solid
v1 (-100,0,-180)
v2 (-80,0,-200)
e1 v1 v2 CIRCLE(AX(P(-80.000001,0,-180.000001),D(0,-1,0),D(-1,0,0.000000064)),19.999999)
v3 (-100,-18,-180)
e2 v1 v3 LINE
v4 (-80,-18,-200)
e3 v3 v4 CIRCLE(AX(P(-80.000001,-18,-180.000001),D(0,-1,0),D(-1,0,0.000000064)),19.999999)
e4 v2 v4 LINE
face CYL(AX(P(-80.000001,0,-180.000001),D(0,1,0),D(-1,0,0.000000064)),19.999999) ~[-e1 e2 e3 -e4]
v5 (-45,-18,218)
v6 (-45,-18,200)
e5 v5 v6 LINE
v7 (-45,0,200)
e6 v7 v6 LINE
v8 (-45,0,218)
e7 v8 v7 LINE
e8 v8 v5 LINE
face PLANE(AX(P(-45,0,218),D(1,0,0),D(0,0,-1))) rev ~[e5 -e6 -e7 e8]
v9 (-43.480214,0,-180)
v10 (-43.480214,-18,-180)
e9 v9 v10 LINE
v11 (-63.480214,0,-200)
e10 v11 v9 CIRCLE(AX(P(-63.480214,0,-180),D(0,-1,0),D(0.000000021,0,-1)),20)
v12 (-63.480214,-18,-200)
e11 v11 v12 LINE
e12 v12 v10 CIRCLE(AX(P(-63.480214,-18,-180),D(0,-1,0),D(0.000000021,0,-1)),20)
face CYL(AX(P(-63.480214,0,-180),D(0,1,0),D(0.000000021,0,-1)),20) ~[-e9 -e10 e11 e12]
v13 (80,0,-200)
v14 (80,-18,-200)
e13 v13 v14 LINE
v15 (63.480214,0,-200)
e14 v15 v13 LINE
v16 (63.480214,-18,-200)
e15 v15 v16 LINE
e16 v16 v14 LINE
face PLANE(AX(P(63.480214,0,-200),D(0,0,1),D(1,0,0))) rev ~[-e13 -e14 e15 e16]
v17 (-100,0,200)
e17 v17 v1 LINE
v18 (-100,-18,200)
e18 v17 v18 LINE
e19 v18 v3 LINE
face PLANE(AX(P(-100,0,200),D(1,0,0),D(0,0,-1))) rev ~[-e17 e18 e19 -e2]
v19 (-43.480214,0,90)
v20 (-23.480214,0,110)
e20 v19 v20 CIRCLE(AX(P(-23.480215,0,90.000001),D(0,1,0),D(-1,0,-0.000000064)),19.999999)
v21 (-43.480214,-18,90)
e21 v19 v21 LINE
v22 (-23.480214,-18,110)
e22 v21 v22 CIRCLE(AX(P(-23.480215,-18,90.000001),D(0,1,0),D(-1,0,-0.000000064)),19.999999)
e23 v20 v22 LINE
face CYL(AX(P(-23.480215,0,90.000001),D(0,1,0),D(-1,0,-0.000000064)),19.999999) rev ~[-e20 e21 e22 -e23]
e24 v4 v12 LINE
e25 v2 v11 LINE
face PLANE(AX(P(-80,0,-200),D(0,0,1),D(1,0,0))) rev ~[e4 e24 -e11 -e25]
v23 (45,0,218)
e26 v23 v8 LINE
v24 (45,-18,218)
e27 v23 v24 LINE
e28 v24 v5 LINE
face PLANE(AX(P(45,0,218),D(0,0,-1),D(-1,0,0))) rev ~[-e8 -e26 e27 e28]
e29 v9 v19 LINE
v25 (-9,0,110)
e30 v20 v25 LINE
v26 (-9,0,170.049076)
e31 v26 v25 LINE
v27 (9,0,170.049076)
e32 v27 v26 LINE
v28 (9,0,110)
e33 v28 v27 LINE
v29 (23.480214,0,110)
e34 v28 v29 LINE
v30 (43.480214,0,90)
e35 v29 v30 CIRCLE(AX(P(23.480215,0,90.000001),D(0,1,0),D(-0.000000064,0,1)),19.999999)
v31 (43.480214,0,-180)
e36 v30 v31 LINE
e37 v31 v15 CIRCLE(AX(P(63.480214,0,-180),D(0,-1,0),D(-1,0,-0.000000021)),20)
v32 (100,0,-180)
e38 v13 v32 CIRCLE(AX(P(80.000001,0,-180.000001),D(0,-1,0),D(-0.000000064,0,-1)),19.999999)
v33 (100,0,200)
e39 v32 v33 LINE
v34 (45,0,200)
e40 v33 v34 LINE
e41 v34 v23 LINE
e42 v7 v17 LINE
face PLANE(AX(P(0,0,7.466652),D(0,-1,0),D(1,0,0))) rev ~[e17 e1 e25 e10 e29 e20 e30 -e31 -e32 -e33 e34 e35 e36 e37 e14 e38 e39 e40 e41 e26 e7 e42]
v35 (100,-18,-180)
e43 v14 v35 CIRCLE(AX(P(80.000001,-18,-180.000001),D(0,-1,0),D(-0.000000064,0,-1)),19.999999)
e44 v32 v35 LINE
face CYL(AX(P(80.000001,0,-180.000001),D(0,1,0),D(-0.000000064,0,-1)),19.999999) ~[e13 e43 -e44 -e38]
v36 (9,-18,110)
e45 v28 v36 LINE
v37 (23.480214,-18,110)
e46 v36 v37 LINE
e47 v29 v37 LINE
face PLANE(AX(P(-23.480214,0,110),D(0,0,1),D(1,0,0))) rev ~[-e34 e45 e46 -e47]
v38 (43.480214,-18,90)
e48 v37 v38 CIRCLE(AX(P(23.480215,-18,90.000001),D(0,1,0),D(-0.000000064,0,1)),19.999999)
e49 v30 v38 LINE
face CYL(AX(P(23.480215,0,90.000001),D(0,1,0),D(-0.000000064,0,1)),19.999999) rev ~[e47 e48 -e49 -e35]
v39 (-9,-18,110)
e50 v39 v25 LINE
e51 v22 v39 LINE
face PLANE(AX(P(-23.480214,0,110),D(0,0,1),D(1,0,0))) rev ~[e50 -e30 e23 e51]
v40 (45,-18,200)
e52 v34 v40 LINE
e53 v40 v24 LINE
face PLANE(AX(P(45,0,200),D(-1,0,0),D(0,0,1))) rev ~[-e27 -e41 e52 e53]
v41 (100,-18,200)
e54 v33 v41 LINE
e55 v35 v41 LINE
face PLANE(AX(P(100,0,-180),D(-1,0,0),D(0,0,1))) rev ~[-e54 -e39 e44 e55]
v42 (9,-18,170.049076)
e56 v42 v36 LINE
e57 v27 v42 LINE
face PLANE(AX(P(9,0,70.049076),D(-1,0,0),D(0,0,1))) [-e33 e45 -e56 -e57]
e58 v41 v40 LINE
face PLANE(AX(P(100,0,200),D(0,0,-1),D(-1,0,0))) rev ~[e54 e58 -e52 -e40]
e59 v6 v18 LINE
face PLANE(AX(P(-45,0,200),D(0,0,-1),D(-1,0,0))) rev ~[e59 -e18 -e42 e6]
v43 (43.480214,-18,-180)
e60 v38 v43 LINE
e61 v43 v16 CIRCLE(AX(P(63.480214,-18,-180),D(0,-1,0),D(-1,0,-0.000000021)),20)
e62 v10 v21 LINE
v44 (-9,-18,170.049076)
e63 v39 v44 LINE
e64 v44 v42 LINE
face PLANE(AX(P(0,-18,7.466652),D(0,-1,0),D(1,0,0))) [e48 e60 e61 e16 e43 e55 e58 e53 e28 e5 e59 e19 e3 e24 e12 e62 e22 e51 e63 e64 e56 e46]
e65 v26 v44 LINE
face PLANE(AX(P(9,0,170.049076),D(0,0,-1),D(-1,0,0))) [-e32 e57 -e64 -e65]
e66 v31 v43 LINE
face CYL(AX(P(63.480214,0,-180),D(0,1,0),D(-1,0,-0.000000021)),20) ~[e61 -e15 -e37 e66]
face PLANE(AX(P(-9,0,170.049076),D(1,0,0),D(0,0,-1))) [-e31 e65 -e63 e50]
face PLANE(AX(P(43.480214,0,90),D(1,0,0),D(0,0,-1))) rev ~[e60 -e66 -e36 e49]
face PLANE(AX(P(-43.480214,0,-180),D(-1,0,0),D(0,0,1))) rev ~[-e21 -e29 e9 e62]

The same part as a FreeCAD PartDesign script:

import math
import FreeCAD as App
import Part
import Sketcher


def add_polygon(sketch, points):
    """Adds a closed chain of lines whose ends are joined by coincident constraints."""
    first, n = sketch.GeometryCount, len(points)
    for a, b in zip(points, points[1:] + points[:1]):
        sketch.addGeometry(Part.LineSegment(App.Vector(*a, 0), App.Vector(*b, 0)), False)
    for i in range(n):
        sketch.addConstraint(Sketcher.Constraint("Coincident", first + i, 2, first + (i + 1) % n, 1))

doc = App.newDocument("Part")
body = doc.addObject("PartDesign::Body", "Body")

sketch1 = body.newObject("Sketcher::SketchObject", "Sketch")
sketch1.AttachmentSupport = (doc.getObject("XZ_Plane"), [""])
sketch1.MapMode = "FlatFace"
sketch1.addGeometry([
    Part.LineSegment(App.Vector(63, -200, 0), App.Vector(80, -200, 0)),
    Part.ArcOfCircle(Part.Circle(App.Vector(80, -180, 0), App.Vector(0, 0, 1), 20), math.radians(-90), math.radians(0)),
    Part.LineSegment(App.Vector(100, -180, 0), App.Vector(100, 200, 0)),
    Part.LineSegment(App.Vector(100, 200, 0), App.Vector(45, 200, 0)),
    Part.LineSegment(App.Vector(45, 200, 0), App.Vector(45, 218, 0)),
    Part.LineSegment(App.Vector(45, 218, 0), App.Vector(-45, 218, 0)),
    Part.LineSegment(App.Vector(-45, 218, 0), App.Vector(-45, 200, 0)),
    Part.LineSegment(App.Vector(-45, 200, 0), App.Vector(-100, 200, 0)),
    Part.LineSegment(App.Vector(-100, 200, 0), App.Vector(-100, -180, 0)),
    Part.ArcOfCircle(Part.Circle(App.Vector(-80, -180, 0), App.Vector(0, 0, 1), 20), math.radians(180), math.radians(270)),
    Part.LineSegment(App.Vector(-80, -200, 0), App.Vector(-63, -200, 0)),
    Part.ArcOfCircle(Part.Circle(App.Vector(-63, -180, 0), App.Vector(0, 0, 1), 20), math.radians(-90), math.radians(0)),
    Part.LineSegment(App.Vector(-43, -180, 0), App.Vector(-43, 90, 0)),
    Part.ArcOfCircle(Part.Circle(App.Vector(-23, 90, 0), App.Vector(0, 0, 1), 20), math.radians(90), math.radians(180)),
    Part.LineSegment(App.Vector(-23, 110, 0), App.Vector(23, 110, 0)),
    Part.ArcOfCircle(Part.Circle(App.Vector(23, 90, 0), App.Vector(0, 0, 1), 20), math.radians(0), math.radians(90)),
    Part.LineSegment(App.Vector(43, 90, 0), App.Vector(43, -180, 0)),
    Part.ArcOfCircle(Part.Circle(App.Vector(63, -180, 0), App.Vector(0, 0, 1), 20), math.radians(-180), math.radians(-90)),
], False)
sketch1.addConstraint([
    Sketcher.Constraint("Tangent", 0, 2, 1, 1),
    Sketcher.Constraint("Tangent", 1, 2, 2, 1),
    Sketcher.Constraint("Coincident", 2, 2, 3, 1),
    Sketcher.Constraint("Coincident", 3, 2, 4, 1),
    Sketcher.Constraint("Coincident", 4, 2, 5, 1),
    Sketcher.Constraint("Coincident", 5, 2, 6, 1),
    Sketcher.Constraint("Coincident", 6, 2, 7, 1),
    Sketcher.Constraint("Coincident", 7, 2, 8, 1),
    Sketcher.Constraint("Tangent", 8, 2, 9, 1),
    Sketcher.Constraint("Tangent", 9, 2, 10, 1),
    Sketcher.Constraint("Tangent", 10, 2, 11, 1),
    Sketcher.Constraint("Tangent", 11, 2, 12, 1),
    Sketcher.Constraint("Tangent", 12, 2, 13, 2),
    Sketcher.Constraint("Tangent", 13, 1, 14, 1),
    Sketcher.Constraint("Tangent", 14, 2, 15, 2),
    Sketcher.Constraint("Tangent", 15, 1, 16, 1),
    Sketcher.Constraint("Tangent", 16, 2, 17, 1),
    Sketcher.Constraint("Tangent", 17, 2, 0, 1),
    Sketcher.Constraint("Horizontal", 0),
    Sketcher.Constraint("Vertical", 2),
    Sketcher.Constraint("Horizontal", 3),
    Sketcher.Constraint("Vertical", 4),
    Sketcher.Constraint("Horizontal", 5),
    Sketcher.Constraint("Vertical", 6),
    Sketcher.Constraint("Horizontal", 7),
    Sketcher.Constraint("Vertical", 8),
    Sketcher.Constraint("Horizontal", 10),
    Sketcher.Constraint("Vertical", 12),
    Sketcher.Constraint("Horizontal", 14),
    Sketcher.Constraint("Vertical", 16),
    Sketcher.Constraint("Equal", 1, 9),
    Sketcher.Constraint("Equal", 9, 11),
    Sketcher.Constraint("Equal", 11, 13),
    Sketcher.Constraint("Equal", 13, 15),
    Sketcher.Constraint("Equal", 15, 17),
    Sketcher.Constraint("Symmetric", 1, 3, 9, 3, -2),
    Sketcher.Constraint("Symmetric", 3, 2, 6, 2, -2),
    Sketcher.Constraint("Equal", 0, 10),
    Sketcher.Constraint("Radius", 1, 19.999999),
    Sketcher.Constraint("DistanceX", 3, 2, 3, 1, 55.0),
    Sketcher.Constraint("DistanceX", 5, 2, 5, 1, 90.0),
    Sketcher.Constraint("DistanceY", 2, 1, 2, 2, 380.0),
    Sketcher.Constraint("DistanceY", 4, 1, 4, 2, 18.0),
    Sketcher.Constraint("DistanceY", 12, 1, 12, 2, 270.0),
    Sketcher.Constraint("DistanceY", 1, 3, -1, 1, 180.000001),
    Sketcher.Constraint("DistanceX", 0, 1, 0, 2, 16.519786),
])
pad1 = body.newObject("PartDesign::Pad", "Pad")
pad1.Profile = sketch1
pad1.Length = 18

sketch2 = body.newObject("Sketcher::SketchObject", "Sketch001")
sketch2.AttachmentSupport = (doc.getObject("XZ_Plane"), [""])
sketch2.MapMode = "FlatFace"
add_polygon(sketch2, [(9, 170), (-9, 170), (-9, 70), (9, 70)])
sketch2.addConstraint([
    Sketcher.Constraint("Horizontal", 0),
    Sketcher.Constraint("Vertical", 1),
    Sketcher.Constraint("Horizontal", 2),
    Sketcher.Constraint("Vertical", 3),
    Sketcher.Constraint("DistanceX", 0, 2, 0, 1, 18.0),
    Sketcher.Constraint("DistanceY", 1, 2, 1, 1, 100.0),
    Sketcher.Constraint("DistanceX", 0, 2, -1, 1, 9.0),
    Sketcher.Constraint("DistanceY", -1, 1, 0, 2, 170.049076),
])
pocket1 = body.newObject("PartDesign::Pocket", "Pocket")
pocket1.Profile = sketch2
pocket1.Length = 188
pocket1.Reversed = True

doc.recompute()
